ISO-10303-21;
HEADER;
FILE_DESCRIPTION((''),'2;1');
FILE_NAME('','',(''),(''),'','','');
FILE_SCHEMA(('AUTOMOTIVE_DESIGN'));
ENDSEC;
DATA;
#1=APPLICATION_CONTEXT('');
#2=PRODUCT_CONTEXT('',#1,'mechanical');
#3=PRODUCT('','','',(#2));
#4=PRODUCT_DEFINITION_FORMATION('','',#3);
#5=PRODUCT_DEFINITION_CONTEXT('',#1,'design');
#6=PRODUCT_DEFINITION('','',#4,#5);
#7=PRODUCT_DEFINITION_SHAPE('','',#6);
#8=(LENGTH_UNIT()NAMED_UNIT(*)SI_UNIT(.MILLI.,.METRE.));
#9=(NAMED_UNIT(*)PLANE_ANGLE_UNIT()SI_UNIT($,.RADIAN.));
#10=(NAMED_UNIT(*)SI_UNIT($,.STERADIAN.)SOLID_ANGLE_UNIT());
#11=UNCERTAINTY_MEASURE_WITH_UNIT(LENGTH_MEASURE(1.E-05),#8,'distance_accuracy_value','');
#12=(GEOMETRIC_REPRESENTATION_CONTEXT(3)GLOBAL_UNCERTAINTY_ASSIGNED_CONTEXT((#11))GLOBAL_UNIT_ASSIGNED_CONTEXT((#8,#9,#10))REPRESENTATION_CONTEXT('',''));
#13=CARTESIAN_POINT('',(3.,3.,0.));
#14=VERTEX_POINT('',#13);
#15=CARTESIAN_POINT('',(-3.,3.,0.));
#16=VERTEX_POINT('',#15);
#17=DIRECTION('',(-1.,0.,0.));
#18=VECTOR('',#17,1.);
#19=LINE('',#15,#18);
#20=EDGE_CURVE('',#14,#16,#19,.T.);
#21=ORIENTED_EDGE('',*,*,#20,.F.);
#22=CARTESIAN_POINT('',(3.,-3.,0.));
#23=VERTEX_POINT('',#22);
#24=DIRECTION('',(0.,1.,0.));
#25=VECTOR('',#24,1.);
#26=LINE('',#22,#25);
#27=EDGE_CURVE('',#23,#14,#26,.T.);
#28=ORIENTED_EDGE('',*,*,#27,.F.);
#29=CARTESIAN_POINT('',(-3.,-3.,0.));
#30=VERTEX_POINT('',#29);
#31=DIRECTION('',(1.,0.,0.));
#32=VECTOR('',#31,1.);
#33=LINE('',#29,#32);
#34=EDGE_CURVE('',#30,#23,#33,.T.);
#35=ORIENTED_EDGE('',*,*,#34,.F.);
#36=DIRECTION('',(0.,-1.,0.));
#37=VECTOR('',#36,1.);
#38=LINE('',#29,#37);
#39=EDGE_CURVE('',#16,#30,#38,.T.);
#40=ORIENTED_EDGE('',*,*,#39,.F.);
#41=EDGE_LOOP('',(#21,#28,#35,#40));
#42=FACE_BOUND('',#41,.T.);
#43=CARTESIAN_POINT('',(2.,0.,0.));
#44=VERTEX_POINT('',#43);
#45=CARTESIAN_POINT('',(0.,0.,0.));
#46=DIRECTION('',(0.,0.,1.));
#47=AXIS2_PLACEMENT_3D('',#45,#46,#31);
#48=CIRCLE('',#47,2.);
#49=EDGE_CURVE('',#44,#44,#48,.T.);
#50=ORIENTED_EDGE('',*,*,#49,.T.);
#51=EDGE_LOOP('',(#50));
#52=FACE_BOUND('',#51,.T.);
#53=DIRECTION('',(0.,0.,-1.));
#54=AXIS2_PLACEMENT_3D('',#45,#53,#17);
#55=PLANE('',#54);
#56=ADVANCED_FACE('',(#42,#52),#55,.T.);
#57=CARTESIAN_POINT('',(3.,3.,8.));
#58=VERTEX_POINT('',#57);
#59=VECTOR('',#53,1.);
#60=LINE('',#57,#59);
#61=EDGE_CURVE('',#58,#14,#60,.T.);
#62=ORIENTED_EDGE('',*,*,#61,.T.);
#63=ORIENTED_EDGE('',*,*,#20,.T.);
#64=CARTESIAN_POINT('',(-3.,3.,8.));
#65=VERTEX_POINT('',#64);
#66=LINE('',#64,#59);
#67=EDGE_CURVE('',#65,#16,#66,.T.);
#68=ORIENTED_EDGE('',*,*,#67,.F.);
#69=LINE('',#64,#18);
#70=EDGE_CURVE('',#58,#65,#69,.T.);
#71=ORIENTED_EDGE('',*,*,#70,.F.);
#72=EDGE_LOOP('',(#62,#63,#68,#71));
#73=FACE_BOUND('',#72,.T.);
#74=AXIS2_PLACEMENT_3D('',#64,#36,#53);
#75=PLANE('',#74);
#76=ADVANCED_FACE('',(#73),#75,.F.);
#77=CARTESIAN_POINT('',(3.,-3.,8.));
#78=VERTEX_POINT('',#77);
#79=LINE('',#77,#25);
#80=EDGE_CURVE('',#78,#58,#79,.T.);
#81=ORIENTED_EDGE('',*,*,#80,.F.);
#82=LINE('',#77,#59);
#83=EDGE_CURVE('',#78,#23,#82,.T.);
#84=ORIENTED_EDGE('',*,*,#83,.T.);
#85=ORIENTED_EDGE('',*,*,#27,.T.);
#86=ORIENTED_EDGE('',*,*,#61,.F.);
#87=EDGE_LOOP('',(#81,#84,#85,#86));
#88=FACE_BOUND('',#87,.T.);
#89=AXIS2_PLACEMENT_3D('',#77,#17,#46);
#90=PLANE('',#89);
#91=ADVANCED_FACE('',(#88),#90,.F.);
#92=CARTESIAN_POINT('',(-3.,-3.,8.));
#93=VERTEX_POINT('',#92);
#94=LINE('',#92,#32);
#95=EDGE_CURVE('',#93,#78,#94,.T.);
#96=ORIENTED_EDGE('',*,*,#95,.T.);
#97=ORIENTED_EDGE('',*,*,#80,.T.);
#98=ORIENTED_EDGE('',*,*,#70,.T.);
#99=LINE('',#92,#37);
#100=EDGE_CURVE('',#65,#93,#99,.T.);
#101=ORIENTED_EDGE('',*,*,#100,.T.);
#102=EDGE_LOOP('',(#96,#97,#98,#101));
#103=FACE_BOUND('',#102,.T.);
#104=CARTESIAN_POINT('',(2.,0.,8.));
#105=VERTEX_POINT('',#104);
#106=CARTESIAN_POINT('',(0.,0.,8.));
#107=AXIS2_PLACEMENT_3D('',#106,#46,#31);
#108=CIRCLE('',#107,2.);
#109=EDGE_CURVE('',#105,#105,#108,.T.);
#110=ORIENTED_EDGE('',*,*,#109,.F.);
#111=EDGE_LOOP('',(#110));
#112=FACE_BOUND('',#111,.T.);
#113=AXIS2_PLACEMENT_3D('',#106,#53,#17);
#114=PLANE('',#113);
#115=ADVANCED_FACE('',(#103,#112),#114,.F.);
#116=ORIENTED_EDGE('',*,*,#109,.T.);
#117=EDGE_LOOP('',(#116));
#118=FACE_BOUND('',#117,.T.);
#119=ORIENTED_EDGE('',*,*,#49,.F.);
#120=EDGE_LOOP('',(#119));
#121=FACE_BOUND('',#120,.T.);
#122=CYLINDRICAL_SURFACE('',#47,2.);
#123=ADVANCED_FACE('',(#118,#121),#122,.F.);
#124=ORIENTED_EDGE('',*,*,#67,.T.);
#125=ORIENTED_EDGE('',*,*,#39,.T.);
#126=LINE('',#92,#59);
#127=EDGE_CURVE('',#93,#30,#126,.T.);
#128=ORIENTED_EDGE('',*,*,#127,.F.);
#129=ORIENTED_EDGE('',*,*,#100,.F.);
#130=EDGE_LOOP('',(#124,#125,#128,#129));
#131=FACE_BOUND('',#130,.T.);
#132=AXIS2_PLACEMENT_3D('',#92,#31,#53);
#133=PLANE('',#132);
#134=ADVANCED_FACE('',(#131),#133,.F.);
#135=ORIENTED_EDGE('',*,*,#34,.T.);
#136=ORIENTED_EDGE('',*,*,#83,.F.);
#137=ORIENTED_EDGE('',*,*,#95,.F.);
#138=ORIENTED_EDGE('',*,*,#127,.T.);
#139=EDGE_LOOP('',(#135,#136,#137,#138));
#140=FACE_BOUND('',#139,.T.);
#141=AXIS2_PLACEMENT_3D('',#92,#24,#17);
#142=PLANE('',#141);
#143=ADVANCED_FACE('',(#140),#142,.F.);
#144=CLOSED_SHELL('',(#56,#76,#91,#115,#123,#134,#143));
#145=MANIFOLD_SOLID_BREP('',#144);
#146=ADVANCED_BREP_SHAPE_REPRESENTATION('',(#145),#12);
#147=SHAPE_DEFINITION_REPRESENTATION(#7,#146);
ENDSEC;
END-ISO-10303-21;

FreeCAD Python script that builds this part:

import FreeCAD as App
import Part
import Sketcher

V = App.Vector

doc = App.newDocument("Part")
params = doc.addObject("Spreadsheet::Sheet", "Params")
for row, (alias, value) in enumerate([
    ("sketch1_width", "6 mm"),
    ("pad1_length", "8 mm"),
    ("sketch2_diameter", "4 mm"),
], start=1):
    params.set(f"A{row}", alias)
    params.set(f"B{row}", "=" + value)
    params.setAlias(f"B{row}", alias)

body = doc.addObject("PartDesign::Body", "Body")

# Sketch on XY plane
sketch1 = doc.addObject("Sketcher::SketchObject", "Sketch")
body.addObject(sketch1)
sketch1.AttachmentSupport = (doc.XY_Plane, [""])
sketch1.MapMode = "FlatFace"
sketch1.addGeometry([
    Part.LineSegment(V(-3, 3, 0), V(-3, -3, 0)),
    Part.LineSegment(V(-3, -3, 0), V(3, -3, 0)),
    Part.LineSegment(V(3, -3, 0), V(3, 3, 0)),
    Part.LineSegment(V(3, 3, 0), V(-3, 3, 0)),
], False)
sketch1.addConstraint([
    Sketcher.Constraint("Coincident", 0, 2, 1, 1),
    Sketcher.Constraint("Coincident", 1, 2, 2, 1),
    Sketcher.Constraint("Coincident", 2, 2, 3, 1),
    Sketcher.Constraint("Coincident", 3, 2, 0, 1),
    Sketcher.Constraint("Vertical", 0),
    Sketcher.Constraint("Horizontal", 1),
    Sketcher.Constraint("Vertical", 2),
    Sketcher.Constraint("Horizontal", 3),
    Sketcher.Constraint("Symmetric", 0, 2, 2, 2, -1, 1),
    Sketcher.Constraint("Equal", 3, 0),
    Sketcher.Constraint("DistanceX", 1, 1, 1, 2, 6.0),
])
sketch1.setExpression("Constraints[10]", "Params.sketch1_width")
pad1 = doc.addObject("PartDesign::Pad", "Pad")
body.addObject(pad1)
pad1.Profile = sketch1
pad1.setExpression("Length", "Params.pad1_length")

# Sketch on XY plane
sketch2 = doc.addObject("Sketcher::SketchObject", "Sketch001")
body.addObject(sketch2)
sketch2.AttachmentSupport = (doc.XY_Plane, [""])
sketch2.MapMode = "FlatFace"
sketch2.AttachmentOffset = App.Placement(V(0, 0, 8), App.Rotation())
sketch2.addGeometry(Part.Circle(V(0, 0, 0), V(0, 0, 1), 2), False)
sketch2.addConstraint([
    Sketcher.Constraint("Coincident", 0, 3, -1, 1),
    Sketcher.Constraint("Diameter", 0, 4.0),
])
sketch2.setExpression("Constraints[1]", "Params.sketch2_diameter")
pocket1 = doc.addObject("PartDesign::Pocket", "Pocket")
body.addObject(pocket1)
pocket1.Profile = sketch2
pocket1.Type = "ThroughAll"

doc.recompute()
